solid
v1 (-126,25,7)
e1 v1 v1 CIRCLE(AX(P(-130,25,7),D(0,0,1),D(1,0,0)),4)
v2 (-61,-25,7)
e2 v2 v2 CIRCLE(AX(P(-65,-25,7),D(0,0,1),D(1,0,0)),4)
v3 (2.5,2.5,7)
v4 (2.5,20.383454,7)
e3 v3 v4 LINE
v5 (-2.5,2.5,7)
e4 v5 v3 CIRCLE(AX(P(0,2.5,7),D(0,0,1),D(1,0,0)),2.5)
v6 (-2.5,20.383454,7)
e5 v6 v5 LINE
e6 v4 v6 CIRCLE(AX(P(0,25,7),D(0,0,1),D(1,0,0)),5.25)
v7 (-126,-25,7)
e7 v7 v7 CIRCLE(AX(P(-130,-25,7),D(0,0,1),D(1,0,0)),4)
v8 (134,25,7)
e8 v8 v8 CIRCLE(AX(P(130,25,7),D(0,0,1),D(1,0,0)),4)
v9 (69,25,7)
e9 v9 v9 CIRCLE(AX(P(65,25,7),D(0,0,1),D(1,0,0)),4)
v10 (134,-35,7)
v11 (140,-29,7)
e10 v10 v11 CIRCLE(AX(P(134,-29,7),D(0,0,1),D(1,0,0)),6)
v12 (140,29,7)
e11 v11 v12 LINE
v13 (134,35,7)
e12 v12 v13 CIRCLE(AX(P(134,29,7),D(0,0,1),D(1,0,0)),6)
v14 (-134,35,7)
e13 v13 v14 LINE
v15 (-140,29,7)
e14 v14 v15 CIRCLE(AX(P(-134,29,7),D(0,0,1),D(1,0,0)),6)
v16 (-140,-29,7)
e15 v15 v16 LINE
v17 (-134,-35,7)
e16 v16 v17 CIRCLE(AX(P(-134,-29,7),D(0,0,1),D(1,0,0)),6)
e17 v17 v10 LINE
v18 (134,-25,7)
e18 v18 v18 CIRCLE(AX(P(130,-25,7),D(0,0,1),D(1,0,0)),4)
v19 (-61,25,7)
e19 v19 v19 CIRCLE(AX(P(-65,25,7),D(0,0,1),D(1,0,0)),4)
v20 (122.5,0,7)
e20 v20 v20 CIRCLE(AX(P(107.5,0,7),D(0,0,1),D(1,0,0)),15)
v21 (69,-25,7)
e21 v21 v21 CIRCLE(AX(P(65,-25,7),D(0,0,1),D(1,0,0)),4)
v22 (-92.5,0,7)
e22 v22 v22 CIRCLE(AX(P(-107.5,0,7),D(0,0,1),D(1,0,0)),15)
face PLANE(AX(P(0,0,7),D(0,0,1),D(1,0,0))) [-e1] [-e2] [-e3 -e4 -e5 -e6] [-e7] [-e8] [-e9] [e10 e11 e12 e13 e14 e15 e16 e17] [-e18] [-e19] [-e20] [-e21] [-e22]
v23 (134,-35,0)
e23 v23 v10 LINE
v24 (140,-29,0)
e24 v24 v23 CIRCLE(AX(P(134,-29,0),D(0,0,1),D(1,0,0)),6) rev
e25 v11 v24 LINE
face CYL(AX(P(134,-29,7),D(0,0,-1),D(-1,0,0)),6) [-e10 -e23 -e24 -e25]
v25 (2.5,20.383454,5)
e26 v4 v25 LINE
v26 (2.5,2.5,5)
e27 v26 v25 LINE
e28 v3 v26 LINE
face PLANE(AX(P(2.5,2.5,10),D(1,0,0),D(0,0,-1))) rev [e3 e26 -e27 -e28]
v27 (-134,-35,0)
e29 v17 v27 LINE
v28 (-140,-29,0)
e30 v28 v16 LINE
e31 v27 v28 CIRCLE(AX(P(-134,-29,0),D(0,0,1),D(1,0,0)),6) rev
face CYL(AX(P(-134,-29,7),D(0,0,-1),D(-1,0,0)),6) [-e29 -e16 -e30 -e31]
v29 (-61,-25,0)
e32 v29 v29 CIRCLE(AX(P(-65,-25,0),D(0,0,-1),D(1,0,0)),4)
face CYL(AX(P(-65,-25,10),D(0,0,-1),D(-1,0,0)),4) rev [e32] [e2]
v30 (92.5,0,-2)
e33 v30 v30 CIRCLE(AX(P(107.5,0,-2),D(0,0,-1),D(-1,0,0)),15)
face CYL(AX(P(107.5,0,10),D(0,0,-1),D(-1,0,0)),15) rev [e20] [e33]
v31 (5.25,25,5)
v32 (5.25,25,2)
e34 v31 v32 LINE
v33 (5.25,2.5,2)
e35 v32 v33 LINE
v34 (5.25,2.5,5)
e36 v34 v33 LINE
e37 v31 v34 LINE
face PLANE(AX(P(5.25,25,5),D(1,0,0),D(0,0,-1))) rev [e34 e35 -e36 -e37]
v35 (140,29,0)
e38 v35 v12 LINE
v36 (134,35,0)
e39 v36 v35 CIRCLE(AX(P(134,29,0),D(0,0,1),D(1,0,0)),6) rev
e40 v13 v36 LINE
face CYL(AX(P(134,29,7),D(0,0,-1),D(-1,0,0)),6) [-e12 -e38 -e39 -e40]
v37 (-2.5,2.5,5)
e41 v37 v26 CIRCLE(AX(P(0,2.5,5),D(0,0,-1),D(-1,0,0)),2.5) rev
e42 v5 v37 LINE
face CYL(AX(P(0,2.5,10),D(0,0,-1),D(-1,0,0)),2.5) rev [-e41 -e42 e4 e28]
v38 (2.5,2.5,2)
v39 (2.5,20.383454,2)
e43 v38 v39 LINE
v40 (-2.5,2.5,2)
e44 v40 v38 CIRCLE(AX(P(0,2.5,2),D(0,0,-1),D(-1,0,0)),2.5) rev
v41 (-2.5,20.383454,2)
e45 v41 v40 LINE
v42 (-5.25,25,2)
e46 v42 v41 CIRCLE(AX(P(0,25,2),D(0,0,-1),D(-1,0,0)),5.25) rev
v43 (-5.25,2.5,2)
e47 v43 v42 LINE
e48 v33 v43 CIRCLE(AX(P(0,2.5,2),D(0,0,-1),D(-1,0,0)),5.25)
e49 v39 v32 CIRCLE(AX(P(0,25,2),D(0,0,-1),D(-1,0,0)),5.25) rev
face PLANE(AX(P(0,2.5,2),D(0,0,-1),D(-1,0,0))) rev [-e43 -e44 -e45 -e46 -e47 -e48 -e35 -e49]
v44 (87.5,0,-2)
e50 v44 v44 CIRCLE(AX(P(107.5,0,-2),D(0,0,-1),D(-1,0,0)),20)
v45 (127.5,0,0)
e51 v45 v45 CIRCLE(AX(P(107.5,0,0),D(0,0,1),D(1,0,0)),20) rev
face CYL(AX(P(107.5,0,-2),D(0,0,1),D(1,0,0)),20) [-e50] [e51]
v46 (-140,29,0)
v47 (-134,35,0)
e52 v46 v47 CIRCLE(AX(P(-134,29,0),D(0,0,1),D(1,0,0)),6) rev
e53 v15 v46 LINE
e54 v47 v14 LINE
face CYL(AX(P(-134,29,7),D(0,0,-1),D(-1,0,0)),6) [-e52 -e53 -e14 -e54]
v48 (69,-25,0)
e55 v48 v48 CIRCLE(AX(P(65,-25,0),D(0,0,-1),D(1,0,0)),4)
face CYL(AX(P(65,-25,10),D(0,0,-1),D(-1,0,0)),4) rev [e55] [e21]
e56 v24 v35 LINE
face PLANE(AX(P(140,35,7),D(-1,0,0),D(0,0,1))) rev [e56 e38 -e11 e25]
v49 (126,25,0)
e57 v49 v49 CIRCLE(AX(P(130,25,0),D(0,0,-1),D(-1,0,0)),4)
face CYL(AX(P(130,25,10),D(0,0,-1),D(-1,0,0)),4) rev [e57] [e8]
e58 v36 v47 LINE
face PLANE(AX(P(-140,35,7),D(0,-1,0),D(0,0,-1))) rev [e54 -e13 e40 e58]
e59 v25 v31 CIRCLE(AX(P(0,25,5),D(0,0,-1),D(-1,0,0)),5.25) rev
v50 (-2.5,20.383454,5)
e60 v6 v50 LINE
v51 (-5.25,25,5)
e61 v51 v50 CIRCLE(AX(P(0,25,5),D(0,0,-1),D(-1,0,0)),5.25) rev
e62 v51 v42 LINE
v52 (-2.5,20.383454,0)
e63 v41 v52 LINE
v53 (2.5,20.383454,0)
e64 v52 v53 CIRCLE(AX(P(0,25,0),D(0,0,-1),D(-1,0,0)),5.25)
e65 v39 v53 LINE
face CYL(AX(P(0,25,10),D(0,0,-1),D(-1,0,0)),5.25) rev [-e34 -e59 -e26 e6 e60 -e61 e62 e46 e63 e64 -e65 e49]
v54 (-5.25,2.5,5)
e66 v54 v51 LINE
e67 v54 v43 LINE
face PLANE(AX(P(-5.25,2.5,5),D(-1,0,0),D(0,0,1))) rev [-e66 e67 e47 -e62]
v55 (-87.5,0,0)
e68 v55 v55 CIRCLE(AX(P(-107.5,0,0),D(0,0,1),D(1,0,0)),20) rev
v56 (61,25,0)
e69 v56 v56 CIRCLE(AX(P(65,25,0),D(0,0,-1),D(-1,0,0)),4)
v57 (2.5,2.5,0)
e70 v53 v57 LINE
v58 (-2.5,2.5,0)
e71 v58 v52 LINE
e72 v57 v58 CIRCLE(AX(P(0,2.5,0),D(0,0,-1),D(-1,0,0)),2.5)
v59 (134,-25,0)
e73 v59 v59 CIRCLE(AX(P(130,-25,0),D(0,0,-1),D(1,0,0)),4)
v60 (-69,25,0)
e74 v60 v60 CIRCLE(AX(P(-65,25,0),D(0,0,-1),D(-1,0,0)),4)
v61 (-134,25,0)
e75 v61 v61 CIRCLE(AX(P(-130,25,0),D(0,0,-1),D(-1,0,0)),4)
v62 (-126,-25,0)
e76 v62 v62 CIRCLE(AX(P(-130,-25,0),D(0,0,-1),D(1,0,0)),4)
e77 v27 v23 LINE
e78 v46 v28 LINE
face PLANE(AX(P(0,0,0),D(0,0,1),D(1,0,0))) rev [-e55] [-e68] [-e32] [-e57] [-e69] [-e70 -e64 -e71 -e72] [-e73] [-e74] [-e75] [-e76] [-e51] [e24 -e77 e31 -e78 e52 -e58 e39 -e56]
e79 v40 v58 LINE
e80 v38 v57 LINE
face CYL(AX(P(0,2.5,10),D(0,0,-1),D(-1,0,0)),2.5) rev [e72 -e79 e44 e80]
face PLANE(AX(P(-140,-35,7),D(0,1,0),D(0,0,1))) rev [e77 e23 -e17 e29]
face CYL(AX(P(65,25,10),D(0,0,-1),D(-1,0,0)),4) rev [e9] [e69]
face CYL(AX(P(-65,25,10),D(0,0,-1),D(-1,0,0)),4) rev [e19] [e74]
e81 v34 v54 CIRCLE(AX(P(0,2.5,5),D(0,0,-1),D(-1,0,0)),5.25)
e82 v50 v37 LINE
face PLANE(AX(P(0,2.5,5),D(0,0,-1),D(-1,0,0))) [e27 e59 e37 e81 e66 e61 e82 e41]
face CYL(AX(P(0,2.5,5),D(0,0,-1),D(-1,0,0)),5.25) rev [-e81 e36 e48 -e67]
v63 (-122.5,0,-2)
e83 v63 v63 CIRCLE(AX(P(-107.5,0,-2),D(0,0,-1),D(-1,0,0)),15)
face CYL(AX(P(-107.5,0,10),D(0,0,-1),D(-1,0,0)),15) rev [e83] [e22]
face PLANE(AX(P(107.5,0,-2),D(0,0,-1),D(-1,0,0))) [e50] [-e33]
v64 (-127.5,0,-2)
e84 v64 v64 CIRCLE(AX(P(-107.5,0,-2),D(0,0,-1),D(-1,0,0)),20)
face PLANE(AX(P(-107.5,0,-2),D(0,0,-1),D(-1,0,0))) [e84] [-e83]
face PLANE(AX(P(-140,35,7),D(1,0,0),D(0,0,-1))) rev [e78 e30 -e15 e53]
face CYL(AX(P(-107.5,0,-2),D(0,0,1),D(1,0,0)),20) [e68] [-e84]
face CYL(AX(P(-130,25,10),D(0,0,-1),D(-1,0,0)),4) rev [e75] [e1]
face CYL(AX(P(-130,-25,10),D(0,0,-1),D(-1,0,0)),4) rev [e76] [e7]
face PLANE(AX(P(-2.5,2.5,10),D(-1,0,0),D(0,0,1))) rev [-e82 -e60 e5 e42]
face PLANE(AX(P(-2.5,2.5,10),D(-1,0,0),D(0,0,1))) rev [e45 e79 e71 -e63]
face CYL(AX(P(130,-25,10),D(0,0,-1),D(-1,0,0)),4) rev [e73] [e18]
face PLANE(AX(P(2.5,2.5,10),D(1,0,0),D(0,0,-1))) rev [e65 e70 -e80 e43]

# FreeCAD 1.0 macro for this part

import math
import FreeCAD as App
import Part
import Sketcher
from FreeCAD import Vector
Q = App.Units.Quantity


def edges_at(feature, points):
    """Names of the edges that pass closest to the given points."""
    edges = feature.Shape.Edges
    near = lambda p: min(range(len(edges)), key=lambda i: edges[i].distToShape(Part.Vertex(*p))[0])
    return sorted({f"Edge{near(p) + 1}" for p in points})


def add_polygon(sketch, points):
    """Adds a closed chain of lines whose ends are joined by coincident constraints."""
    first, n = sketch.GeometryCount, len(points)
    for a, b in zip(points, points[1:] + points[:1]):
        sketch.addGeometry(Part.LineSegment(App.Vector(*a, 0), App.Vector(*b, 0)), False)
    for i in range(n):
        sketch.addConstraint(Sketcher.Constraint("Coincident", first + i, 2, first + (i + 1) % n, 1))

doc = App.newDocument("Part")
body = doc.addObject("PartDesign::Body", "Body")

# Sketch on XY plane
sketch1 = body.newObject("Sketcher::SketchObject", "Sketch")
sketch1.AttachmentSupport = (doc.getObject("XY_Plane"), [""])
sketch1.MapMode = "FlatFace"
add_polygon(sketch1, [(-140, 35), (-140, -35), (140, -35), (140, 35)])  # lines 0-3
sketch1.addConstraint([
    Sketcher.Constraint("Vertical", 0),
    Sketcher.Constraint("Horizontal", 1),
    Sketcher.Constraint("Vertical", 2),
    Sketcher.Constraint("Horizontal", 3),
    Sketcher.Constraint("Symmetric", 0, 2, 2, 2, -1, 1),
    Sketcher.Constraint("DistanceX", 1, 1, 1, 2, Q("280 mm")),
    Sketcher.Constraint("DistanceY", 0, 2, 0, 1, Q("70 mm")),
])
pad1 = body.newObject("PartDesign::Pad", "Pad")
pad1.Profile = sketch1
pad1.Length = 7
doc.recompute()

fillet = body.newObject("PartDesign::Fillet", "Fillet")
fillet.Base = (pad1, edges_at(pad1, [
    (140, -35, 3.5),
    (-140, -35, 3.5),
    (-140, 35, 3.5),
    (140, 35, 3.5),
]))
fillet.Radius = 6

# Sketch on XY plane
sketch2 = body.newObject("Sketcher::SketchObject", "Sketch001")
sketch2.AttachmentSupport = (doc.getObject("XY_Plane"), [""])
sketch2.MapMode = "FlatFace"
sketch2.addGeometry([
    Part.Circle(Vector(107.5, 0, 0), Vector(0, 0, 1), 15),  # 0
    Part.Circle(Vector(-107.5, 0, 0), Vector(0, 0, 1), 15),  # 1
    Part.Circle(Vector(-130, 25, 0), Vector(0, 0, 1), 4),  # 2
    Part.Circle(Vector(-65, 25, 0), Vector(0, 0, 1), 4),  # 3
    Part.Circle(Vector(65, 25, 0), Vector(0, 0, 1), 4),  # 4
    Part.Circle(Vector(130, 25, 0), Vector(0, 0, 1), 4),  # 5
    Part.Circle(Vector(130, -25, 0), Vector(0, 0, 1), 4),  # 6
    Part.Circle(Vector(65, -25, 0), Vector(0, 0, 1), 4),  # 7
    Part.Circle(Vector(-65, -25, 0), Vector(0, 0, 1), 4),  # 8
    Part.Circle(Vector(-130, -25, 0), Vector(0, 0, 1), 4),  # 9
    Part.LineSegment(Vector(2.5, 20.383454, 0), Vector(2.5, 2.5, 0)),  # 10
    Part.ArcOfCircle(Part.Circle(Vector(0, 2.5, 0), Vector(0, 0, 1), 2.5), math.radians(180), math.radians(360)),  # 11
    Part.LineSegment(Vector(-2.5, 2.5, 0), Vector(-2.5, 20.383454, 0)),  # 12
    Part.ArcOfCircle(Part.Circle(Vector(0, 25, 0), Vector(0, 0, 1), 5.25), math.radians(-61.56311), math.radians(241.56311)),  # 13
], False)
sketch2.addConstraint([
    Sketcher.Constraint("Tangent", 10, 2, 11, 2),
    Sketcher.Constraint("Tangent", 11, 1, 12, 1),
    Sketcher.Constraint("Coincident", 12, 2, 13, 2),
    Sketcher.Constraint("Coincident", 13, 1, 10, 1),
    Sketcher.Constraint("Vertical", 10),
    Sketcher.Constraint("Vertical", 12),
    Sketcher.Constraint("Equal", 0, 1),
    Sketcher.Constraint("Equal", 2, 3),
    Sketcher.Constraint("Equal", 3, 4),
    Sketcher.Constraint("Equal", 4, 5),
    Sketcher.Constraint("Equal", 5, 6),
    Sketcher.Constraint("Equal", 6, 7),
    Sketcher.Constraint("Equal", 7, 8),
    Sketcher.Constraint("Equal", 8, 9),
    Sketcher.Constraint("Symmetric", 0, 3, 1, 3, -1, 1),
    Sketcher.Constraint("Symmetric", 2, 3, 6, 3, -1, 1),
    Sketcher.Constraint("Symmetric", 3, 3, 7, 3, -1, 1),
    Sketcher.Constraint("Symmetric", 4, 3, 8, 3, -1, 1),
    Sketcher.Constraint("Symmetric", 5, 3, 9, 3, -1, 1),
    Sketcher.Constraint("Symmetric", 3, 3, 4, 3, -2),
    Sketcher.Constraint("Symmetric", 2, 3, 5, 3, -2),
    Sketcher.Constraint("Symmetric", 12, 2, 13, 1, -2),
    Sketcher.Constraint("PointOnObject", 0, 3, -1),
    Sketcher.Constraint("Horizontal", 2, 3, 3, 3),
    Sketcher.Constraint("Horizontal", 5, 3, 13, 3),
    Sketcher.Constraint("Diameter", 0, Q("30 mm")),
    Sketcher.Constraint("Diameter", 2, Q("8 mm")),
    Sketcher.Constraint("Radius", 11, Q("2.5 mm")),
    Sketcher.Constraint("Radius", 13, Q("5.25 mm")),
    Sketcher.Constraint("DistanceX", 2, 3, -1, 1, Q("130 mm")),
    Sketcher.Constraint("DistanceY", -1, 1, 2, 3, Q("25 mm")),
    Sketcher.Constraint("DistanceX", 3, 3, -1, 1, Q("65 mm")),
    Sketcher.Constraint("DistanceX", 1, 3, 0, 3, Q("215 mm")),
    Sketcher.Constraint("DistanceY", -1, 1, 11, 3, Q("2.5 mm")),
])
pocket1 = body.newObject("PartDesign::Pocket", "Pocket")
pocket1.Profile = sketch2
pocket1.Length = 10
pocket1.Reversed = True

# Sketch on XY plane
sketch3 = body.newObject("Sketcher::SketchObject", "Sketch002")
sketch3.AttachmentSupport = (doc.getObject("XY_Plane"), [""])
sketch3.MapMode = "FlatFace"
sketch3.AttachmentOffset = App.Placement(Vector(0, 0, -2), App.Rotation())
sketch3.addGeometry([
    Part.Circle(Vector(107.5, 0, 0), Vector(0, 0, 1), 20),
    Part.Circle(Vector(107.5, 0, 0), Vector(0, 0, 1), 15),
    Part.Circle(Vector(-107.5, 0, 0), Vector(0, 0, 1), 20),
    Part.Circle(Vector(-107.5, 0, 0), Vector(0, 0, 1), 15),
], False)
sketch3.addConstraint([
    Sketcher.Constraint("Coincident", 1, 3, 0, 3),
    Sketcher.Constraint("Coincident", 3, 3, 2, 3),
    Sketcher.Constraint("Equal", 0, 2),
    Sketcher.Constraint("Equal", 1, 3),
    Sketcher.Constraint("Symmetric", 0, 3, 2, 3, -1, 1),
    Sketcher.Constraint("PointOnObject", 0, 3, -1),
    Sketcher.Constraint("Diameter", 0, Q("40 mm")),
    Sketcher.Constraint("Diameter", 1, Q("30 mm")),
    Sketcher.Constraint("DistanceX", 2, 3, 0, 3, Q("215 mm")),
])
pad2 = body.newObject("PartDesign::Pad", "Pad001")
pad2.Profile = sketch3
pad2.Length = 2

# Sketch on XY plane
sketch4 = body.newObject("Sketcher::SketchObject", "Sketch003")
sketch4.AttachmentSupport = (doc.getObject("XY_Plane"), [""])
sketch4.MapMode = "FlatFace"
sketch4.AttachmentOffset = App.Placement(Vector(0, 0, 2), App.Rotation())
sketch4.addGeometry([
    Part.LineSegment(Vector(5.25, 25, 0), Vector(5.25, 2.5, 0)),
    Part.ArcOfCircle(Part.Circle(Vector(0, 2.5, 0), Vector(0, 0, 1), 5.25), math.radians(180), math.radians(360)),
    Part.LineSegment(Vector(-5.25, 2.5, 0), Vector(-5.25, 25, 0)),
    Part.LineSegment(Vector(-5.25, 25, 0), Vector(5.25, 25, 0)),
], False)
sketch4.addConstraint([
    Sketcher.Constraint("Tangent", 0, 2, 1, 2),
    Sketcher.Constraint("Tangent", 1, 1, 2, 1),
    Sketcher.Constraint("Coincident", 2, 2, 3, 1),
    Sketcher.Constraint("Coincident", 3, 2, 0, 1),
    Sketcher.Constraint("Vertical", 0),
    Sketcher.Constraint("Vertical", 2),
    Sketcher.Constraint("Horizontal", 3),
    Sketcher.Constraint("PointOnObject", 1, 3, -2),
    Sketcher.Constraint("Radius", 1, Q("5.25 mm")),
    Sketcher.Constraint("DistanceY", 0, 2, 0, 1, Q("22.5 mm")),
    Sketcher.Constraint("DistanceY", -1, 1, 2, 2, Q("25 mm")),
])
pocket2 = body.newObject("PartDesign::Pocket", "Pocket001")
pocket2.Profile = sketch4
pocket2.Length = 3
pocket2.Reversed = True

doc.recompute()
